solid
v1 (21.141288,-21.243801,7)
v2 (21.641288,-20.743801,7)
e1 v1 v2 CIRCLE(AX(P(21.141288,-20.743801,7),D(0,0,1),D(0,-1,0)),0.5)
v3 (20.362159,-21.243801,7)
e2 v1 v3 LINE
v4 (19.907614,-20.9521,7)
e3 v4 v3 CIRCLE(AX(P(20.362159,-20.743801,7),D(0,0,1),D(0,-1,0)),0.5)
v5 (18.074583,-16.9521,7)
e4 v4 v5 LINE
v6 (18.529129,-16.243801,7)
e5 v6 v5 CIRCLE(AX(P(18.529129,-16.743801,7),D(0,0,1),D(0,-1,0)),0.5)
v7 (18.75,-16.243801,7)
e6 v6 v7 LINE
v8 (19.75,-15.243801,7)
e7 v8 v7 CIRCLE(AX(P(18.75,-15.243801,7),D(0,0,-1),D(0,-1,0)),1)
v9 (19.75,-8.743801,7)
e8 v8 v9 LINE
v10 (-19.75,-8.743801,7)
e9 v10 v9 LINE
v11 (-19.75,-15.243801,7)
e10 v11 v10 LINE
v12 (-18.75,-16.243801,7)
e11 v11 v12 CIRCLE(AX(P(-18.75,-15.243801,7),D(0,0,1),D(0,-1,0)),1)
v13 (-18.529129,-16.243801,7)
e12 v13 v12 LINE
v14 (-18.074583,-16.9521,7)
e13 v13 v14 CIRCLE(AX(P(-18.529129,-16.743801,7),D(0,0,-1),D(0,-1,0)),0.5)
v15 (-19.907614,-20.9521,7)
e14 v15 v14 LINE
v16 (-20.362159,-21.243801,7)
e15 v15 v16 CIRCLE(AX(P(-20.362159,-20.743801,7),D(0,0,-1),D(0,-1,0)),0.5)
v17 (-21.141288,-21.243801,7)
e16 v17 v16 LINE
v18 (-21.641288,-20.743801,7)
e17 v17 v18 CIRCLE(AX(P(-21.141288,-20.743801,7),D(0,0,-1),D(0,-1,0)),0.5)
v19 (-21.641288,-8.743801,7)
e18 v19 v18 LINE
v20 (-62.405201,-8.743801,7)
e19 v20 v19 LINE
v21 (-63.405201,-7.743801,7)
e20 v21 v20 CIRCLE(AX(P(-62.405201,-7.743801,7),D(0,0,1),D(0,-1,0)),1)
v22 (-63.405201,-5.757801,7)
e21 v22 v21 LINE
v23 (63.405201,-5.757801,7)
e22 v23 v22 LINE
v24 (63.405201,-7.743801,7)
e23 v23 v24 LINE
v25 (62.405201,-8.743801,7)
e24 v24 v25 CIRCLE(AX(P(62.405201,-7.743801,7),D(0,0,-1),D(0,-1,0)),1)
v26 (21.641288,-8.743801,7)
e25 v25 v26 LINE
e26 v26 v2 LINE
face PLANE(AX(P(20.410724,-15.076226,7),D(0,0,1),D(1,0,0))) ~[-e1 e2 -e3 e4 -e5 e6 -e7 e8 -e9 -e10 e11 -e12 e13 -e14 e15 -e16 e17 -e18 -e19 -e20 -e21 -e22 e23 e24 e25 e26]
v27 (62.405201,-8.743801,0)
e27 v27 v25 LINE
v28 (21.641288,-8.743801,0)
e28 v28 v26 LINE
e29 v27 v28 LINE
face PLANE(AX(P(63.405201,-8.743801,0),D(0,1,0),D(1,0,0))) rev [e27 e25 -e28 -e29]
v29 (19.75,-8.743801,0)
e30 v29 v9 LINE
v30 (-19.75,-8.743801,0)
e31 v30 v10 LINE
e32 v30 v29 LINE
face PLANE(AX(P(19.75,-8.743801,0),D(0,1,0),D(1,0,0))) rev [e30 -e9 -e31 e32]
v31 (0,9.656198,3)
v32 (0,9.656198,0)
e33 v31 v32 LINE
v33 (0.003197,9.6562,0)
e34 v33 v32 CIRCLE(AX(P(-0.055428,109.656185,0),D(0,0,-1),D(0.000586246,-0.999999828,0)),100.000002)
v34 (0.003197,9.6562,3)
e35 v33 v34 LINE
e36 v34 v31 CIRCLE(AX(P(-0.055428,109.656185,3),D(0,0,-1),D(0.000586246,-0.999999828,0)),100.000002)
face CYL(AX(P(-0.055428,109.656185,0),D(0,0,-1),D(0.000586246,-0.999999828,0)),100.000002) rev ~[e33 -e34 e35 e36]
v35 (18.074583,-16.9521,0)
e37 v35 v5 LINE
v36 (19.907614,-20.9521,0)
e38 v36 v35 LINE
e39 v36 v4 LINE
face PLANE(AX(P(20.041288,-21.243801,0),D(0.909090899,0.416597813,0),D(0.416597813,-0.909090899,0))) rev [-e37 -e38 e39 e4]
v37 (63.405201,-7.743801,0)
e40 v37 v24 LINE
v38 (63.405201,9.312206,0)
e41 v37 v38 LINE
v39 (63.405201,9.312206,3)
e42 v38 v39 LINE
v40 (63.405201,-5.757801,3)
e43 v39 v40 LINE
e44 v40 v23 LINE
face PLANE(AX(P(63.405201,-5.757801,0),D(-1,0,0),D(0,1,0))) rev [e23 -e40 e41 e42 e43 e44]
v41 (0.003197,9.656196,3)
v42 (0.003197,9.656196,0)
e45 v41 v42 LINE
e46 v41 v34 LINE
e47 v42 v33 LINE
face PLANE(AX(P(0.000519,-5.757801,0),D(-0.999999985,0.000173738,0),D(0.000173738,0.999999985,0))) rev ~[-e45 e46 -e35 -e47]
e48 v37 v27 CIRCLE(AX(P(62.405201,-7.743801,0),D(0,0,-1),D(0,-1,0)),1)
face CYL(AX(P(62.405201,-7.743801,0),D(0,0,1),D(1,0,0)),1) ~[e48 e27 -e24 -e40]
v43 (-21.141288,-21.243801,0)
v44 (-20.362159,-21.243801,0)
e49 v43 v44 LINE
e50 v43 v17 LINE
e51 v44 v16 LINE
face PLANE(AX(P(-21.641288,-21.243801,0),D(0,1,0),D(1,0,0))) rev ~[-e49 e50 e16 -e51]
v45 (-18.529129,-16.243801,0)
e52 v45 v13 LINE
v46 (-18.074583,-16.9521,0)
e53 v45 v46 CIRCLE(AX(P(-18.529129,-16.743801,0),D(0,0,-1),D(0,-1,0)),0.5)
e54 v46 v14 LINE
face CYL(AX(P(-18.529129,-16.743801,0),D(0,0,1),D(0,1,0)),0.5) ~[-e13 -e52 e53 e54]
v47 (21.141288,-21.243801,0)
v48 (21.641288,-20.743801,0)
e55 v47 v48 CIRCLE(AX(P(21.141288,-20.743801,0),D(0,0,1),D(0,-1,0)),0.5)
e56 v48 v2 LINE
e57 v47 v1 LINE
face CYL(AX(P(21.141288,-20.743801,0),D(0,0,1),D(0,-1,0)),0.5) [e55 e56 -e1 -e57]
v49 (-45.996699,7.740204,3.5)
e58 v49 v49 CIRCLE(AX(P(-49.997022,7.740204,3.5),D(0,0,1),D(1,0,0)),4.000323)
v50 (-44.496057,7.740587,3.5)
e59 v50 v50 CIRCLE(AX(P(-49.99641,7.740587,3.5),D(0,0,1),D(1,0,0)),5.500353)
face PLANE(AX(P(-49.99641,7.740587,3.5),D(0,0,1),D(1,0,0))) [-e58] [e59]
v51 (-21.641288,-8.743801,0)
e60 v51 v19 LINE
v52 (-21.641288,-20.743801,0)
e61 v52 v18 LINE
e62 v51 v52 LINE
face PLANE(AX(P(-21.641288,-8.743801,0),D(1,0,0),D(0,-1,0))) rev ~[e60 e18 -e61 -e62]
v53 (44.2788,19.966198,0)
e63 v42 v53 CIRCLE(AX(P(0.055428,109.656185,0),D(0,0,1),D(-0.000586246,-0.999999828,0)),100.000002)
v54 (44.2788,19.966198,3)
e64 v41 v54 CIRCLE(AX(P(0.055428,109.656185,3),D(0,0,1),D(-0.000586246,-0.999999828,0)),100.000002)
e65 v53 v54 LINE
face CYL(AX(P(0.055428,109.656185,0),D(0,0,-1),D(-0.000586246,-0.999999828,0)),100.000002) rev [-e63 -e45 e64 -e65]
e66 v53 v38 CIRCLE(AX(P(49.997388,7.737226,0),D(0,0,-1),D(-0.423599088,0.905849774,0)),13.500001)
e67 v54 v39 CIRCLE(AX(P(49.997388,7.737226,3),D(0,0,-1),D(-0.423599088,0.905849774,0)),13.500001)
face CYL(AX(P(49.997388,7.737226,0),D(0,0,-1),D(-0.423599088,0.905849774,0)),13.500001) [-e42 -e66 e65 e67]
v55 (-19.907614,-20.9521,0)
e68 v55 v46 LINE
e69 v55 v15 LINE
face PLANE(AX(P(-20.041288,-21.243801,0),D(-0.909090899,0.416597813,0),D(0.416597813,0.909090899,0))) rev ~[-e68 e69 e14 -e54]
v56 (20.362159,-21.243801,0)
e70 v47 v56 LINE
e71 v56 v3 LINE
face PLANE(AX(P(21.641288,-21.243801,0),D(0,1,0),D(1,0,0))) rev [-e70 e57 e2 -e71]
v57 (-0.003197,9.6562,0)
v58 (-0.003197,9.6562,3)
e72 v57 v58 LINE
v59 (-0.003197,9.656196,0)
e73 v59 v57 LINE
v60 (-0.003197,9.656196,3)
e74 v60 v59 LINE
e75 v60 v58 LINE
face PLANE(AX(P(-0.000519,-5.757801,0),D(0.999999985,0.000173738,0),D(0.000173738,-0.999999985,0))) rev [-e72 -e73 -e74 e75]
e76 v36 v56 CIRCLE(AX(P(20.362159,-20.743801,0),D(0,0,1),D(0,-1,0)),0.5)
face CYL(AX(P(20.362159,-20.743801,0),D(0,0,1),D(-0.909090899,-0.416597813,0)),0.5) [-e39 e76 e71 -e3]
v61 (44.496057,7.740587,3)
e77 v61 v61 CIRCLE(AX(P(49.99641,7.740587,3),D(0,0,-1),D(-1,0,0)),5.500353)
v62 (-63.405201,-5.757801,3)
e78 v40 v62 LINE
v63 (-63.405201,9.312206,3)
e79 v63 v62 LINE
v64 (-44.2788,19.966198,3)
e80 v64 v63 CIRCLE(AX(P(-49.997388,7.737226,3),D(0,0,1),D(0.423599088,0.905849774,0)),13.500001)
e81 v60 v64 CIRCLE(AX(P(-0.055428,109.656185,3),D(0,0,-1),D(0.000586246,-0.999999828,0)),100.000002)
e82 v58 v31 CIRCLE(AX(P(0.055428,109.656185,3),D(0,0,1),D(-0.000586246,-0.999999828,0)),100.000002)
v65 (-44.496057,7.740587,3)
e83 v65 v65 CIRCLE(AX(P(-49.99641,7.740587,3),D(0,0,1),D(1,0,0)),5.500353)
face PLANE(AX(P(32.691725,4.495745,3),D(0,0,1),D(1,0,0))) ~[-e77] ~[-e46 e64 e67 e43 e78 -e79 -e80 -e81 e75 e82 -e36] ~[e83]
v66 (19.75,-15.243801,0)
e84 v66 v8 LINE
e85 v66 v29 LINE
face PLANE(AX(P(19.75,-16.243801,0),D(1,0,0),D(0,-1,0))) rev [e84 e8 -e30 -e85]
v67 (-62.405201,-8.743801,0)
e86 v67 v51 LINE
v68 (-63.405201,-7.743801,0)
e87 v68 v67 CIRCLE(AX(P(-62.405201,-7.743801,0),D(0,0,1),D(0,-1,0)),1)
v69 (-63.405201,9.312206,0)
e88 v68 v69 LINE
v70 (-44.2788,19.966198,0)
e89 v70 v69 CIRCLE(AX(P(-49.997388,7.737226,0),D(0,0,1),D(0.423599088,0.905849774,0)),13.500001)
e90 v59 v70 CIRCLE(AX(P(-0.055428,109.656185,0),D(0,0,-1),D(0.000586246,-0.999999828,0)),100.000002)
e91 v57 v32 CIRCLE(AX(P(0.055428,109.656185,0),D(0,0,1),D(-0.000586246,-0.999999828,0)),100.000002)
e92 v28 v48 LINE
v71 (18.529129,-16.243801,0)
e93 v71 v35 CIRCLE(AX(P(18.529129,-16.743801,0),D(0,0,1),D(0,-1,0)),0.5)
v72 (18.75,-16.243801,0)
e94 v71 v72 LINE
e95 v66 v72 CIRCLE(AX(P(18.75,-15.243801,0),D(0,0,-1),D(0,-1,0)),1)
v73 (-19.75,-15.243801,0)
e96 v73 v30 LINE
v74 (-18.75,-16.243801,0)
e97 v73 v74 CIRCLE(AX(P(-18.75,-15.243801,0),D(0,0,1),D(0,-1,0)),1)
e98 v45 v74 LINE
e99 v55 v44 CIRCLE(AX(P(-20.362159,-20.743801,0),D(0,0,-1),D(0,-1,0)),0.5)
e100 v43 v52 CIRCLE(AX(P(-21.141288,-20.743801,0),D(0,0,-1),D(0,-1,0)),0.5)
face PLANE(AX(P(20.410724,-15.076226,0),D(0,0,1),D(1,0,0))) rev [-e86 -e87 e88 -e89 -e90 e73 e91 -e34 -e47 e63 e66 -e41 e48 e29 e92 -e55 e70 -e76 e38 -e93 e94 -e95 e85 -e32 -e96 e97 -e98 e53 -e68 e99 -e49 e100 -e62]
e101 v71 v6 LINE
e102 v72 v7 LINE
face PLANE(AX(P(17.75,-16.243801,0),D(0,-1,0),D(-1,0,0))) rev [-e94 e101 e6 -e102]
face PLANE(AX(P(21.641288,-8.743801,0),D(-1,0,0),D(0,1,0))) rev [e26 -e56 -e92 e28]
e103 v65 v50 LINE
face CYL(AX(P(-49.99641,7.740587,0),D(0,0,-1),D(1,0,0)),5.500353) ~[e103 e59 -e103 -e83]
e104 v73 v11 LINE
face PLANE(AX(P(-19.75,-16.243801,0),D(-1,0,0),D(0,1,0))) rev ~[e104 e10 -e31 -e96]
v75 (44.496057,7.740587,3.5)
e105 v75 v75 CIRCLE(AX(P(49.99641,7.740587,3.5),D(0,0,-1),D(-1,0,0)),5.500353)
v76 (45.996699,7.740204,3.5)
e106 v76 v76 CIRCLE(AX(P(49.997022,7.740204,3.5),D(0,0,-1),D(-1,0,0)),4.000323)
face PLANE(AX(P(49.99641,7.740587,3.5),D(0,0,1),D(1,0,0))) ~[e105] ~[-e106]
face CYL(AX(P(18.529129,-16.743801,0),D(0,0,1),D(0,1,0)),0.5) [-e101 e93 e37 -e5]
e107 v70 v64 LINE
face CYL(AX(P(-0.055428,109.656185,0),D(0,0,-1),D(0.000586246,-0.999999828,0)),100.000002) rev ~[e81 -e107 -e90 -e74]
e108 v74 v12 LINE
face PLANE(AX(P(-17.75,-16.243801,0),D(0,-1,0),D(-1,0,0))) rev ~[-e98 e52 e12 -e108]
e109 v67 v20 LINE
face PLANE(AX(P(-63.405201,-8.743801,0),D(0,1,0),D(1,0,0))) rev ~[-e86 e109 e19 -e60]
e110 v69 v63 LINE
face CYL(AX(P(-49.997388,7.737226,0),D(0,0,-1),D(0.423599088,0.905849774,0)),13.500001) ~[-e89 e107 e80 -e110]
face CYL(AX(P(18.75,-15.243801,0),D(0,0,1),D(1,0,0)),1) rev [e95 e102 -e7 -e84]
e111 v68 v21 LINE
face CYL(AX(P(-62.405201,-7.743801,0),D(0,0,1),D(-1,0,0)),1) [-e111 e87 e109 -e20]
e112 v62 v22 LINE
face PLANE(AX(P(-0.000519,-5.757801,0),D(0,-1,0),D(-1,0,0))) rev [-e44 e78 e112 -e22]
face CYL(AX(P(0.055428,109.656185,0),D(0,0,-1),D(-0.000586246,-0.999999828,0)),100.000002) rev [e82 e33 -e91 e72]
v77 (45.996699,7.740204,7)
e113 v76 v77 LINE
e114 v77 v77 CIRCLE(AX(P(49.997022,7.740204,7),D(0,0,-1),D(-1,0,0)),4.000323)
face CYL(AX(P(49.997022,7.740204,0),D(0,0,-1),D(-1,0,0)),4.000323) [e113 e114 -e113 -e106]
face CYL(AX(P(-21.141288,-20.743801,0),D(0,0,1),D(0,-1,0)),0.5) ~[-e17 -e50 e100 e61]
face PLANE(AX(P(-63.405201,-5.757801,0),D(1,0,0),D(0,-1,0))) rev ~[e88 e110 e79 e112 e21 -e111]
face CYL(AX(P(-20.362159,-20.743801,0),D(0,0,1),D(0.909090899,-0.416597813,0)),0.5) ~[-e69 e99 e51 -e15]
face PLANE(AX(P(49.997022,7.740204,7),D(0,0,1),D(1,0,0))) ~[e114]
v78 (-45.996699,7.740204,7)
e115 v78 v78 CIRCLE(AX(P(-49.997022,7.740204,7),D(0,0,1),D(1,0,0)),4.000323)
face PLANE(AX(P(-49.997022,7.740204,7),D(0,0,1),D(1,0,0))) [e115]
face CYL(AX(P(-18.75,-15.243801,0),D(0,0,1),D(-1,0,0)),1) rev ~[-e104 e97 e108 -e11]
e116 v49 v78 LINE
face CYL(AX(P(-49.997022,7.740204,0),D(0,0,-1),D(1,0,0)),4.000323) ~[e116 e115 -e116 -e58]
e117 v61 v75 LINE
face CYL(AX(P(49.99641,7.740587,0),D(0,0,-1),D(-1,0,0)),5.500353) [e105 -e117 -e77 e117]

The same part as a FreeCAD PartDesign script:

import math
import FreeCAD as App
import Part
import Sketcher

V = App.Vector
Q = App.Units.Quantity


def edges_at(feature, points):
    """Names of the edges that pass closest to the given points."""
    edges = feature.Shape.Edges
    near = lambda p: min(range(len(edges)), key=lambda i: edges[i].distToShape(Part.Vertex(*p))[0])
    return sorted({f"Edge{near(p) + 1}" for p in points})


def add_polygon(sketch, points):
    """Adds a closed chain of lines whose ends are joined by coincident constraints."""
    first, n = sketch.GeometryCount, len(points)
    for a, b in zip(points, points[1:] + points[:1]):
        sketch.addGeometry(Part.LineSegment(App.Vector(*a, 0), App.Vector(*b, 0)), False)
    for i in range(n):
        sketch.addConstraint(Sketcher.Constraint("Coincident", first + i, 2, first + (i + 1) % n, 1))

doc = App.newDocument("Part")
body = doc.addObject("PartDesign::Body", "Body")

# Sketch on XY plane
sketch1 = doc.addObject("Sketcher::SketchObject", "Sketch")
body.addObject(sketch1)
sketch1.AttachmentSupport = (doc.XY_Plane, [""])
sketch1.MapMode = "FlatFace"
sketch1.addGeometry([
    Part.ArcOfCircle(Part.Circle(V(0, 110, 0), V(0, 0, 1), 100), math.radians(-116), math.radians(-90)),  # 0
    Part.ArcOfCircle(Part.Circle(V(-50, 8, 0), V(0, 0, 1), 14), math.radians(65), math.radians(173)),  # 1
    Part.LineSegment(V(-63, 9, 0), V(-63, -6, 0)),  # 2
    Part.LineSegment(V(-63, -6, 0), V(0, -6, 0)),  # 3
    Part.LineSegment(V(0, -6, 0), V(0, 10, 0)),  # 4
    Part.Circle(V(-50, 8, 0), V(0, 0, 1), 6),  # 5
], False)
sketch1.addConstraint([
    Sketcher.Constraint("Coincident", 0, 1, 1, 1),
    Sketcher.Constraint("Coincident", 1, 2, 2, 1),
    Sketcher.Constraint("Coincident", 2, 2, 3, 1),
    Sketcher.Constraint("Coincident", 3, 2, 4, 1),
    Sketcher.Constraint("Coincident", 4, 2, 0, 2),
    Sketcher.Constraint("Vertical", 2),
    Sketcher.Constraint("Horizontal", 3),
    Sketcher.Constraint("Radius", 0, Q("100.000002 mm")),
    Sketcher.Constraint("Radius", 1, Q("13.500001 mm")),
    Sketcher.Constraint("Distance", 4, Q("15.414001 mm")),
    Sketcher.Constraint("Diameter", 5, Q("11.000706 mm")),
    Sketcher.Constraint("DistanceY", 2, 2, 0, 1, Q("25.723999 mm")),
    Sketcher.Constraint("DistanceX", 3, 1, 3, 2, Q("63.40572 mm")),
    Sketcher.Constraint("DistanceX", 0, 1, -1, 1, Q("44.2788 mm")),
    Sketcher.Constraint("DistanceX", 1, 2, -1, 1, Q("63.405201 mm")),
    Sketcher.Constraint("DistanceY", 2, 2, -1, 1, Q("5.757801 mm")),
    Sketcher.Constraint("DistanceY", 2, 2, 2, 1, Q("15.070007 mm")),
    Sketcher.Constraint("DistanceX", 5, 3, -1, 1, Q("49.99641 mm")),
    Sketcher.Constraint("DistanceY", 1, 3, 5, 3, Q("0.003361 mm")),
    Sketcher.Constraint("DistanceX", 3, 2, 4, 2, Q("0.002678 mm")),
])
pad1 = doc.addObject("PartDesign::Pad", "Pad")
body.addObject(pad1)
pad1.Profile = sketch1
pad1.Length = 3

# Sketch on XY plane
sketch2 = doc.addObject("Sketcher::SketchObject", "Sketch001")
body.addObject(sketch2)
sketch2.AttachmentSupport = (doc.XY_Plane, [""])
sketch2.MapMode = "FlatFace"
sketch2.addGeometry([
    Part.Circle(V(-50, 7.7, 0), V(0, 0, 1), 5.5),
    Part.Circle(V(-50, 7.7, 0), V(0, 0, 1), 4),
], False)
sketch2.addConstraint([
    Sketcher.Constraint("Diameter", 0, Q("11.000706 mm")),
    Sketcher.Constraint("Diameter", 1, Q("8.000646 mm")),
    Sketcher.Constraint("DistanceX", 0, 3, -1, 1, Q("49.99641 mm")),
    Sketcher.Constraint("DistanceY", -1, 1, 0, 3, Q("7.740587 mm")),
    Sketcher.Constraint("DistanceX", 1, 3, -1, 1, Q("49.997022 mm")),
    Sketcher.Constraint("DistanceY", -1, 1, 1, 3, Q("7.740204 mm")),
])
pad2 = doc.addObject("PartDesign::Pad", "Pad001")
body.addObject(pad2)
pad2.Profile = sketch2
pad2.Length = 3.5

# Sketch on XY plane
sketch3 = doc.addObject("Sketcher::SketchObject", "Sketch002")
body.addObject(sketch3)
sketch3.AttachmentSupport = (doc.XY_Plane, [""])
sketch3.MapMode = "FlatFace"
add_polygon(sketch3, [(-21.6, -8.7), (-21.6, -21.2), (-20, -21.2), (-17.8, -16.2), (-19.8, -16.2), (-19.8, -8.7), (0, -8.7), (0, -5.8), (-63.4, -5.8), (-63.4, -8.7)])  # lines 0-9
sketch3.addGeometry(Part.Circle(V(-50, 7.7, 0), V(0, 0, 1), 4), False)  # 10
sketch3.addConstraint([
    Sketcher.Constraint("Vertical", 0),
    Sketcher.Constraint("Horizontal", 1),
    Sketcher.Constraint("Horizontal", 3),
    Sketcher.Constraint("Vertical", 4),
    Sketcher.Constraint("Horizontal", 5),
    Sketcher.Constraint("Horizontal", 7),
    Sketcher.Constraint("Vertical", 8),
    Sketcher.Constraint("Horizontal", 9),
    Sketcher.Constraint("PointOnObject", 5, 2, -2),
    Sketcher.Constraint("Horizontal", 5, 2, 8, 2),
    Sketcher.Constraint("DistanceX", 3, 2, 3, 1, Q("2 mm")),
    Sketcher.Constraint("DistanceX", 1, 1, 1, 2, Q("1.6 mm")),
    Sketcher.Constraint("DistanceY", 0, 2, 0, 1, Q("12.5 mm")),
    Sketcher.Constraint("DistanceY", 4, 1, 4, 2, Q("7.5 mm")),
    Sketcher.Constraint("Distance", 2, Q("5.5 mm")),
    Sketcher.Constraint("DistanceX", 5, 1, 5, 2, Q("19.75 mm")),
    Sketcher.Constraint("DistanceY", 8, 2, 8, 1, Q("2.986 mm")),
    Sketcher.Constraint("Diameter", 10, Q("8.000646 mm")),
    Sketcher.Constraint("DistanceX", 7, 2, 7, 1, Q("63.40572 mm")),
    Sketcher.Constraint("DistanceY", 0, 2, -1, 1, Q("21.243801 mm")),
    Sketcher.Constraint("DistanceX", 7, 2, -1, 1, Q("63.405201 mm")),
    Sketcher.Constraint("DistanceX", 7, 2, 10, 3, Q("13.408179 mm")),
    Sketcher.Constraint("DistanceY", -1, 1, 10, 3, Q("7.740204 mm")),
])
pad3 = doc.addObject("PartDesign::Pad", "Pad002")
body.addObject(pad3)
pad3.Profile = sketch3
pad3.Length = 7
doc.recompute()

fillet = doc.addObject("PartDesign::Fillet", "Fillet")
body.addObject(fillet)
fillet.Base = (pad3, edges_at(pad3, [(-19.75, -16.244, 3.5), (-63.405, -8.744, 3.5)]))
fillet.Radius = 1
doc.recompute()

fillet2 = doc.addObject("PartDesign::Fillet", "Fillet001")
body.addObject(fillet2)
fillet2.Base = (fillet, edges_at(fillet, [(-17.75, -16.244, 3.5), (-20.041, -21.244, 3.5), (-21.641, -21.244, 3.5)]))
fillet2.Radius = 0.5
body2 = doc.addObject("PartDesign::Body", "Body001")
doc.recompute()

body2.BaseFeature = body
doc.recompute()

mirroring = doc.addObject("Part::Mirroring", "Mirroring")
mirroring.Source = body
mirroring.Base = V(0, 0, 0)
mirroring.Normal = V(1, 0, 0)
body3 = doc.addObject("PartDesign::Body", "Body002")
body3.BaseFeature = mirroring
boolean = doc.addObject("PartDesign::Boolean", "Boolean")
body2.addObject(boolean)
boolean.Type = "Fuse"
boolean.addObjects([body3])
doc.recompute()
mirroring.Visibility = False

doc.recompute()
